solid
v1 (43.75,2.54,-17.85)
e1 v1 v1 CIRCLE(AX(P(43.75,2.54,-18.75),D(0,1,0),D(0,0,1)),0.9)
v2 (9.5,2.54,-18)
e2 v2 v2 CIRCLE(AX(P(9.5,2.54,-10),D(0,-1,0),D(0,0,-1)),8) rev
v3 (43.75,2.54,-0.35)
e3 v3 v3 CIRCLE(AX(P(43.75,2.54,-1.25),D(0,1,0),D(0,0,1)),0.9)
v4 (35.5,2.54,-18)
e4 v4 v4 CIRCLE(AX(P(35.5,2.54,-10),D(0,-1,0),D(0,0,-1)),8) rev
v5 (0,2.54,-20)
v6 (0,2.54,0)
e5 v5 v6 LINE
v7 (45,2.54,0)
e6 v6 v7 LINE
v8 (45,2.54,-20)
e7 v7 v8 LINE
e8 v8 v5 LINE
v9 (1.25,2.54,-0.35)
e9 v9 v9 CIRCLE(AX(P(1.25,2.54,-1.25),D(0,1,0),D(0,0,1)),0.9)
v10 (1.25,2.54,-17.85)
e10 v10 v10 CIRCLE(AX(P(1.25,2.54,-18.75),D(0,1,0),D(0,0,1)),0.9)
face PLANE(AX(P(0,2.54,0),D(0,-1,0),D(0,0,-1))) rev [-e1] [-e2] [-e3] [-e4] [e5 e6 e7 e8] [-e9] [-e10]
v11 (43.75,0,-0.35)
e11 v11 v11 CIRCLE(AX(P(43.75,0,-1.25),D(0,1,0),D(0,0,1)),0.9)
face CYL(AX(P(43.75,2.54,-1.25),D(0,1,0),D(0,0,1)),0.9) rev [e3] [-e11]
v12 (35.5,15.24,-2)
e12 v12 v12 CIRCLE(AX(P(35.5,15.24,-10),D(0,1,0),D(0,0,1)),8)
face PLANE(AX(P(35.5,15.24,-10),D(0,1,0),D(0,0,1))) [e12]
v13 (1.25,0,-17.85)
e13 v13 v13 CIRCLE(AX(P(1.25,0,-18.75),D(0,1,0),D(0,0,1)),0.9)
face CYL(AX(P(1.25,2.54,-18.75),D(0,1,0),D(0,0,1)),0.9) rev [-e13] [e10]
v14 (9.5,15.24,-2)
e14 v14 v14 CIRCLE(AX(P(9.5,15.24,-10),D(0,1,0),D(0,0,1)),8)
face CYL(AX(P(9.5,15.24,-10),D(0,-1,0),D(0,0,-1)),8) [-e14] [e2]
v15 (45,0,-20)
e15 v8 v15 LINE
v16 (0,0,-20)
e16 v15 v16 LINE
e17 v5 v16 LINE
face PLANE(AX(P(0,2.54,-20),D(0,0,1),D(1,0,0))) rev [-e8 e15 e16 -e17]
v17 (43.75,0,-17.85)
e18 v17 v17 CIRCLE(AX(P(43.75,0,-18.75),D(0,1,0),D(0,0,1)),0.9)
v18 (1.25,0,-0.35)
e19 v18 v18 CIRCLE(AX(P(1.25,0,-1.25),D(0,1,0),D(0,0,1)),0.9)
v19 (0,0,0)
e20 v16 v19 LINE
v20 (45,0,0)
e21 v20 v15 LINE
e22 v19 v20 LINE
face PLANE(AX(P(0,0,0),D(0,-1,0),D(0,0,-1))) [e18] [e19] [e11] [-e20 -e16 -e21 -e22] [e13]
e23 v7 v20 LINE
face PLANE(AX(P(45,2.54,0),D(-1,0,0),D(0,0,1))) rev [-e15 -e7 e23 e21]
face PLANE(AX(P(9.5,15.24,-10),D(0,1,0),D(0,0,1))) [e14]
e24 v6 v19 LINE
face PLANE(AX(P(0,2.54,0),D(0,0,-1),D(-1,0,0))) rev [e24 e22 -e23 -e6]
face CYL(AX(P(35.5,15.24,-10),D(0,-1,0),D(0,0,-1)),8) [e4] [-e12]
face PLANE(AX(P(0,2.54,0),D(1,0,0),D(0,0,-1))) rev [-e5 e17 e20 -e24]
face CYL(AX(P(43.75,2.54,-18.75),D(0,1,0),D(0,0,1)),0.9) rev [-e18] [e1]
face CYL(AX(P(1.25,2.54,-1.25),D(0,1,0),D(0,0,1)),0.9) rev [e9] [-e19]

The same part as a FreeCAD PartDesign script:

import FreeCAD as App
import Part
import Sketcher
from FreeCAD import Vector
Q = App.Units.Quantity


def add_polygon(sketch, points):
    """Adds a closed chain of lines whose ends are joined by coincident constraints."""
    first, n = sketch.GeometryCount, len(points)
    for a, b in zip(points, points[1:] + points[:1]):
        sketch.addGeometry(Part.LineSegment(App.Vector(*a, 0), App.Vector(*b, 0)), False)
    for i in range(n):
        sketch.addConstraint(Sketcher.Constraint("Coincident", first + i, 2, first + (i + 1) % n, 1))

doc = App.newDocument("Part")
params = doc.addObject("Spreadsheet::Sheet", "Params")
for row, (alias, value) in enumerate([
    ("sketch1_width", "45 mm"),
    ("sketch1_height", "20 mm"),
    ("pad1_length", "2.54 mm"),
    ("sketch2_diameter", "1.8 mm"),
    ("hole_diameter", "1.8 mm"),
    ("sketch3_diameter", "16 mm"),
    ("pad2_length", "12.7 mm"),
], start=1):
    params.set(f"A{row}", alias)
    params.set(f"B{row}", "=" + value)
    params.setAlias(f"B{row}", alias)

body = doc.addObject("PartDesign::Body", "Body")

# Sketch on XZ plane
sketch1 = doc.addObject("Sketcher::SketchObject", "Sketch")
body.addObject(sketch1)
sketch1.AttachmentSupport = (doc.XZ_Plane, [""])
sketch1.MapMode = "FlatFace"
add_polygon(sketch1, [(0, -20), (0, 0), (45, 0), (45, -20)])  # lines 0-3
sketch1.addConstraint([
    Sketcher.Constraint("Vertical", 0),
    Sketcher.Constraint("Horizontal", 1),
    Sketcher.Constraint("Vertical", 2),
    Sketcher.Constraint("Horizontal", 3),
    Sketcher.Constraint("Coincident", 0, 2, -1, 1),
    Sketcher.Constraint("DistanceX", 1, 1, 1, 2, Q("45 mm")),
    Sketcher.Constraint("DistanceY", 0, 1, 0, 2, Q("20 mm")),
])
sketch1.setExpression("Constraints[9]", "Params.sketch1_width")
sketch1.setExpression("Constraints[10]", "Params.sketch1_height")
pad1 = doc.addObject("PartDesign::Pad", "Pad")
body.addObject(pad1)
pad1.Profile = sketch1
pad1.setExpression("Length", "Params.pad1_length")
pad1.Reversed = True

# Sketch on XZ plane
sketch2 = doc.addObject("Sketcher::SketchObject", "Sketch001")
body.addObject(sketch2)
sketch2.AttachmentSupport = (doc.XZ_Plane, [""])
sketch2.MapMode = "FlatFace"
sketch2.AttachmentOffset = App.Placement(Vector(0, 0, -2.54), App.Rotation())
sketch2.addGeometry([
    Part.Circle(Vector(43.8, -18.8, 0), Vector(0, 0, 1), 0.9),
    Part.Circle(Vector(1.2, -18.8, 0), Vector(0, 0, 1), 0.9),
    Part.Circle(Vector(1.2, -1.2, 0), Vector(0, 0, 1), 0.9),
    Part.Circle(Vector(43.8, -1.2, 0), Vector(0, 0, 1), 0.9),
], False)
sketch2.addConstraint([
    Sketcher.Constraint("Equal", 0, 1),
    Sketcher.Constraint("Equal", 1, 2),
    Sketcher.Constraint("Equal", 2, 3),
    Sketcher.Constraint("Horizontal", 0, 3, 1, 3),
    Sketcher.Constraint("Horizontal", 2, 3, 3, 3),
    Sketcher.Constraint("Vertical", 1, 3, 2, 3),
    Sketcher.Constraint("Vertical", 0, 3, 3, 3),
    Sketcher.Constraint("Diameter", 0, Q("1.8 mm")),
    Sketcher.Constraint("DistanceX", 1, 3, 0, 3, Q("42.5 mm")),
    Sketcher.Constraint("DistanceY", 1, 3, 2, 3, Q("17.5 mm")),
    Sketcher.Constraint("DistanceX", -1, 1, 0, 3, Q("43.75 mm")),
    Sketcher.Constraint("DistanceY", 0, 3, -1, 1, Q("18.75 mm")),
])
sketch2.setExpression("Constraints[7]", "Params.sketch2_diameter")
doc.recompute()
hole = doc.addObject("PartDesign::Hole", "Hole")
body.addObject(hole)
hole.Profile = sketch2
hole.ThreadType = "None"
hole.setExpression("Diameter", "Params.hole_diameter")
hole.DepthType = "ThroughAll"
hole.Reversed = True

# Sketch on XZ plane
sketch3 = doc.addObject("Sketcher::SketchObject", "Sketch002")
body.addObject(sketch3)
sketch3.AttachmentSupport = (doc.XZ_Plane, [""])
sketch3.MapMode = "FlatFace"
sketch3.AttachmentOffset = App.Placement(Vector(0, 0, -2.54), App.Rotation())
sketch3.addGeometry([
    Part.Circle(Vector(10, -10, 0), Vector(0, 0, 1), 8),
    Part.Circle(Vector(36, -10, 0), Vector(0, 0, 1), 8),
], False)
sketch3.addConstraint([
    Sketcher.Constraint("Equal", 0, 1),
    Sketcher.Constraint("Horizontal", 0, 3, 1, 3),
    Sketcher.Constraint("Diameter", 0, Q("16 mm")),
    Sketcher.Constraint("DistanceY", 0, 3, -1, 1, Q("10 mm")),
    Sketcher.Constraint("DistanceX", 0, 3, 1, 3, Q("26 mm")),
    Sketcher.Constraint("DistanceX", -1, 1, 0, 3, Q("9.5 mm")),
])
sketch3.setExpression("Constraints[2]", "Params.sketch3_diameter")
pad2 = doc.addObject("PartDesign::Pad", "Pad001")
body.addObject(pad2)
pad2.Profile = sketch3
pad2.setExpression("Length", "Params.pad2_length")
pad2.Reversed = True

doc.recompute()
